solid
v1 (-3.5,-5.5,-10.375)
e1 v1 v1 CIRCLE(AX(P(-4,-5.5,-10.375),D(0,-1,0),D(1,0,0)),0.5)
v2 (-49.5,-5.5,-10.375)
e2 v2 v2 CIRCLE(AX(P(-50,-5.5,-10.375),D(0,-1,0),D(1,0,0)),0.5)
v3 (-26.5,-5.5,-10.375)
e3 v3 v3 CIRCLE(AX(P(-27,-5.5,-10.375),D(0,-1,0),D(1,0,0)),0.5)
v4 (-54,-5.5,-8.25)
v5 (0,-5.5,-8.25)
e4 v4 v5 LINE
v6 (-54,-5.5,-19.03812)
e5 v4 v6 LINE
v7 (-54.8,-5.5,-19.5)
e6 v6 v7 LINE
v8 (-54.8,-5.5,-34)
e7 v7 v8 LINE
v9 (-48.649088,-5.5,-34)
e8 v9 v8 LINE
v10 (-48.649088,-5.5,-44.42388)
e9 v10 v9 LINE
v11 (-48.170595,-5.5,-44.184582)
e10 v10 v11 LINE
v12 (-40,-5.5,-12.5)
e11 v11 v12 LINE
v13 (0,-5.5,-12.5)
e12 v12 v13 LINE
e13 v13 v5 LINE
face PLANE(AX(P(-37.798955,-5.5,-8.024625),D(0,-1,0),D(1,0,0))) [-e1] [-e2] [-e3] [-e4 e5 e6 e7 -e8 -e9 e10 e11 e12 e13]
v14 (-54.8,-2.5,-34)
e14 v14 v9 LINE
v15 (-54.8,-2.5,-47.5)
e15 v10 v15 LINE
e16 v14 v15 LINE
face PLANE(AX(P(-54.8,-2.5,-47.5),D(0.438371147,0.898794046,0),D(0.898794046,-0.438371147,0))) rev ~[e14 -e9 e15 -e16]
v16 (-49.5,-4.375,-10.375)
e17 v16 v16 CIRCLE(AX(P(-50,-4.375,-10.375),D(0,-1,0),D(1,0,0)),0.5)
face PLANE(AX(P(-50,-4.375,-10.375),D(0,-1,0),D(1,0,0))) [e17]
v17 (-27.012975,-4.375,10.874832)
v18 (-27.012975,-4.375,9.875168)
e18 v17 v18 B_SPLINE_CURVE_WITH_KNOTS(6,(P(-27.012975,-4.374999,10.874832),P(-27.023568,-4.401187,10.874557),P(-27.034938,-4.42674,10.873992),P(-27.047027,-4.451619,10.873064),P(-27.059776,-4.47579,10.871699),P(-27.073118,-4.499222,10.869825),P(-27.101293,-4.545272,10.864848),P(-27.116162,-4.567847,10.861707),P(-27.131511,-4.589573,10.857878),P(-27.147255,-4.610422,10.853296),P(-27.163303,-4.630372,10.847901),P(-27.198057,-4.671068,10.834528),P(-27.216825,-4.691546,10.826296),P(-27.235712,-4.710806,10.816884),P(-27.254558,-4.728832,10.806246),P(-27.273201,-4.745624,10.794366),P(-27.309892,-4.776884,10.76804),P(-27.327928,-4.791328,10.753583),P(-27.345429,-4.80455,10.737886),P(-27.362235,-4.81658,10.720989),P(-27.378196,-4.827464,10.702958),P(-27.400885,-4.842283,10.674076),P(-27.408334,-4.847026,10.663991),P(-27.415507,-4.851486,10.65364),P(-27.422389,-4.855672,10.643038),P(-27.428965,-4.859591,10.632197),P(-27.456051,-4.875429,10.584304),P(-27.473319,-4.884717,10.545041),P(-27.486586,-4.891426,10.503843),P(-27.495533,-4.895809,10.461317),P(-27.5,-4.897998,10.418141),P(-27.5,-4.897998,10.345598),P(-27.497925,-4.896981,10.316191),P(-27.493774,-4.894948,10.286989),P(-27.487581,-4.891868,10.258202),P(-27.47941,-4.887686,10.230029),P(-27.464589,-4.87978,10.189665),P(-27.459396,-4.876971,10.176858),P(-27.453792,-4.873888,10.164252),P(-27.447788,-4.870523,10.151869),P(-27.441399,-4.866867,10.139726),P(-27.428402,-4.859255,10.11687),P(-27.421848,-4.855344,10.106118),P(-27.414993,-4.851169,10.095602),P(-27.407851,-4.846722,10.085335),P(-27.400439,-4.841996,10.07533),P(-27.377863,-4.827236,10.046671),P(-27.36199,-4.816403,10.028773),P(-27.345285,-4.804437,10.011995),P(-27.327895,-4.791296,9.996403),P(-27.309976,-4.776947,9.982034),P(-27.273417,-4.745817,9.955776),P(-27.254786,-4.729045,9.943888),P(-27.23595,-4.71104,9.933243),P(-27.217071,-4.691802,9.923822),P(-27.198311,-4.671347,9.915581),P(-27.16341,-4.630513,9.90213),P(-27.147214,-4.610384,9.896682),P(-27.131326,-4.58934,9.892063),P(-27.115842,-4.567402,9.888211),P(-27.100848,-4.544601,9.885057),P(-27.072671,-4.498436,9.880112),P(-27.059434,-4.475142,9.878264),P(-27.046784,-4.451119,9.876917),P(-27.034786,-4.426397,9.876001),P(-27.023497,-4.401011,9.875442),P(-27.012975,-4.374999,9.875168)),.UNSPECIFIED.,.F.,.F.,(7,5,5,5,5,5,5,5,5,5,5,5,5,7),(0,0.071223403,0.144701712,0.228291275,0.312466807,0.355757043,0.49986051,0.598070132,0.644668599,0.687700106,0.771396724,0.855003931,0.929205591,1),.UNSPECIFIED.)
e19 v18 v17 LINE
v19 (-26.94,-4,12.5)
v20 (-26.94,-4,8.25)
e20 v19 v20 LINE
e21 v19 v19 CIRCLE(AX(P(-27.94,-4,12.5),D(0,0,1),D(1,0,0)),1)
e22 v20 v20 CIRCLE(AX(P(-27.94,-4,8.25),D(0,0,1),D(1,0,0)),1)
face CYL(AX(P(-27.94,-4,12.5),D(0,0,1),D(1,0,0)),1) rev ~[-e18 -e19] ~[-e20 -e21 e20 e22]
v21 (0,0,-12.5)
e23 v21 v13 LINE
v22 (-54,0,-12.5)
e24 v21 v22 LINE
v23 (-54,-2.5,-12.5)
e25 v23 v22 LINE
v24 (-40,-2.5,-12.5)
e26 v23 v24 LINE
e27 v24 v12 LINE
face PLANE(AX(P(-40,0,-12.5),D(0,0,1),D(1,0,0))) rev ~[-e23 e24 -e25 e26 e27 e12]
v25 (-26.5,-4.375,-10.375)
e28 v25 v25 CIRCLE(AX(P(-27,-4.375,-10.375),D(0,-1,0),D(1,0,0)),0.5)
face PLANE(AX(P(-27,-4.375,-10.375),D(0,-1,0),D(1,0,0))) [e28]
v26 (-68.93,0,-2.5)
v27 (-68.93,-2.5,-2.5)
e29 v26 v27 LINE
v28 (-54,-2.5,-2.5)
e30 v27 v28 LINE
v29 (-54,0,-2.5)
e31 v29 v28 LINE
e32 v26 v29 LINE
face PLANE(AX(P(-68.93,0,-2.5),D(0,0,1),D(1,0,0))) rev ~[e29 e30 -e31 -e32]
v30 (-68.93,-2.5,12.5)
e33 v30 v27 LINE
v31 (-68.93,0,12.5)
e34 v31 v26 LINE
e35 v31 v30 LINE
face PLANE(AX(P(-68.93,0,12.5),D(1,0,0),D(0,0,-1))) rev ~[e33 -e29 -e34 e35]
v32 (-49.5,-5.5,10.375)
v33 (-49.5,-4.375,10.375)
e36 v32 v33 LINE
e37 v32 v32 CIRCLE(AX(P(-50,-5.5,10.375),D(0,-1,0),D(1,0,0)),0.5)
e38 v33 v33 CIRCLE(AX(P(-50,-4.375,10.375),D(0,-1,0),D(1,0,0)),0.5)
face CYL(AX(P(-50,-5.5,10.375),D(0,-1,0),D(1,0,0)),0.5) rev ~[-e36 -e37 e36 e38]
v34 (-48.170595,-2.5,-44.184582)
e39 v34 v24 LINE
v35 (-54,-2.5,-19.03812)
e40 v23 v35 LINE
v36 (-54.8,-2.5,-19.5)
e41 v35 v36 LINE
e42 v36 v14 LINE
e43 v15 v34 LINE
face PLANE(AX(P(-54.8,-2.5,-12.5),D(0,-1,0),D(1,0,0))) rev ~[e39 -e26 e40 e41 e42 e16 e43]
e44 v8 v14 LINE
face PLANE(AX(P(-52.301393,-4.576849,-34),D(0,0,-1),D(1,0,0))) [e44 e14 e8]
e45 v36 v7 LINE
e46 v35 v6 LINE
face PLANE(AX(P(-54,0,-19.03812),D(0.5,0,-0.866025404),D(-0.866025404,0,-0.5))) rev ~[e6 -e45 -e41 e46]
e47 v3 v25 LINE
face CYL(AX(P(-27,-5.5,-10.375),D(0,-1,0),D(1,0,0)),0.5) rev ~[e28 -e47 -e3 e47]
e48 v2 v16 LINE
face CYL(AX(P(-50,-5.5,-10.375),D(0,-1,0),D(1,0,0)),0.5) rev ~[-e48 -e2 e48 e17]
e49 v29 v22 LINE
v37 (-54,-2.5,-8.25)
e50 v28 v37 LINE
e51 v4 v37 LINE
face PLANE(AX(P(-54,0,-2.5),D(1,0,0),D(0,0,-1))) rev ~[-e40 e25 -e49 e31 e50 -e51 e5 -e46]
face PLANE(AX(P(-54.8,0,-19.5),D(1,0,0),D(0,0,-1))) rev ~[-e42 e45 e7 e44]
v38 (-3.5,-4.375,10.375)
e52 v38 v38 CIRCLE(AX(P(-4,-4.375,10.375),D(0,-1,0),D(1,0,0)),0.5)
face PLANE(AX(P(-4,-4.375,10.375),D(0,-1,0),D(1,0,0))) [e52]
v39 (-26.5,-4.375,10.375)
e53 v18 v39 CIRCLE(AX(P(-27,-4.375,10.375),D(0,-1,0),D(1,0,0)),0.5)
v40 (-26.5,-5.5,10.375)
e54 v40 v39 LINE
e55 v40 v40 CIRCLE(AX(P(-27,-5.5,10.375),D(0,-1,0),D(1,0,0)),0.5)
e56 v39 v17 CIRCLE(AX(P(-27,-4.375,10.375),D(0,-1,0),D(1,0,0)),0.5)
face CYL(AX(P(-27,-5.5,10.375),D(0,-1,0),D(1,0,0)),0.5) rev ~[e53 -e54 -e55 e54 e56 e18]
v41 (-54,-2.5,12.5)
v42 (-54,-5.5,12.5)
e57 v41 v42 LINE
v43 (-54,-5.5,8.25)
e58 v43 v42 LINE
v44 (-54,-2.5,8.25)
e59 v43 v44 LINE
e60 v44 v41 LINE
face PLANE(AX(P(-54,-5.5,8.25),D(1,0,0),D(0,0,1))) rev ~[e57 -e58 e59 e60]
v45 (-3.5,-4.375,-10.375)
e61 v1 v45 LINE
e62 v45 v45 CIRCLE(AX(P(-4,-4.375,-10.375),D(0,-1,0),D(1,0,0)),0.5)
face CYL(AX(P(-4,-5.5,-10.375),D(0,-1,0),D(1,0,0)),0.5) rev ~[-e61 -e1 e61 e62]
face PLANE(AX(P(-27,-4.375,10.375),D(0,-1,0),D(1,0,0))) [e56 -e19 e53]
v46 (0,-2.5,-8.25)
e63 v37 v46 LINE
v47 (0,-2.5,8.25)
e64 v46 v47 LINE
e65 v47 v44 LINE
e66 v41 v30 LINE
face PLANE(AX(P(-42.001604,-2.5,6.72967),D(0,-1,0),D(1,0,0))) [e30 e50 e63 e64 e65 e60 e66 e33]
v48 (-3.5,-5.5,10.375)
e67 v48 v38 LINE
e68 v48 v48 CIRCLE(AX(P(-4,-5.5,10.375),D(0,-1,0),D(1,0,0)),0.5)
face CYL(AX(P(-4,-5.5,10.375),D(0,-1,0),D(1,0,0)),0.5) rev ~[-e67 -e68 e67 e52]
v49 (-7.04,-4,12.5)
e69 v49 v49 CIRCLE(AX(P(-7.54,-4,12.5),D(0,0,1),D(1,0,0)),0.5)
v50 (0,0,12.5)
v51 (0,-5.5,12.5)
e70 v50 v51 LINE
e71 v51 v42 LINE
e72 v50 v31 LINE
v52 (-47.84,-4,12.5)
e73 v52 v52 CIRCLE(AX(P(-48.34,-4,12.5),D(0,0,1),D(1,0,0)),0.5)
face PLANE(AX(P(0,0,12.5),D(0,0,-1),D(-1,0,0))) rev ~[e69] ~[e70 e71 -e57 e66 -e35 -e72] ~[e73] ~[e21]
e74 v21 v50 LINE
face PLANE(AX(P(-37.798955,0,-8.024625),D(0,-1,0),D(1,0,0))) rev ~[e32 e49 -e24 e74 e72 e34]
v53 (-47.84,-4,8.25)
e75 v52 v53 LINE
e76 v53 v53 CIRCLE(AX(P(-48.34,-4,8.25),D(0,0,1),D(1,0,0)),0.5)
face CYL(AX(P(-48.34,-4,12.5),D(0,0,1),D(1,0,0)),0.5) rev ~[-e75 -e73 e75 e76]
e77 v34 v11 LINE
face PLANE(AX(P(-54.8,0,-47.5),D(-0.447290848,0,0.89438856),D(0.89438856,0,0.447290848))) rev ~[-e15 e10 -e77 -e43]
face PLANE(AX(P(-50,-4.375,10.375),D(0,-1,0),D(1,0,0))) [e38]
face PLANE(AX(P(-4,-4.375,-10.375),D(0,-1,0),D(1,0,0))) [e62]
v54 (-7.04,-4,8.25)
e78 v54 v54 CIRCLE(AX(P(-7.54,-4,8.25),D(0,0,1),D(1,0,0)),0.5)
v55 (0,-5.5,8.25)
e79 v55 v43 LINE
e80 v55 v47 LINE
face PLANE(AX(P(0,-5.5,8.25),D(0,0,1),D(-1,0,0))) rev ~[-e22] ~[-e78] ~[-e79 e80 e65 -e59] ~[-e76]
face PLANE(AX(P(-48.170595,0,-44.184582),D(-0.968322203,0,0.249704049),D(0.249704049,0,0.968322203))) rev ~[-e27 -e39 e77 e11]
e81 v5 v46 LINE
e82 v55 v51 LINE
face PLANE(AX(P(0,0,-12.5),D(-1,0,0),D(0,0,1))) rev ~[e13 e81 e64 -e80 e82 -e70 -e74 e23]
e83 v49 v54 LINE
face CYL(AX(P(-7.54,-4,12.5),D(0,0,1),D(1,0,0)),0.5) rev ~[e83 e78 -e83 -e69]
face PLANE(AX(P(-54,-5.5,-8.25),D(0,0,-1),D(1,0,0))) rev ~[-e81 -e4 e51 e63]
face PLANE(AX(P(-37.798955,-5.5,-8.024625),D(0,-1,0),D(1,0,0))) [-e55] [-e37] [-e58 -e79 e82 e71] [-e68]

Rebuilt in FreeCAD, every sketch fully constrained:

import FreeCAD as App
import Part
import Sketcher
from FreeCAD import Vector
Q = App.Units.Quantity


def add_polygon(sketch, points):
    """Adds a closed chain of lines whose ends are joined by coincident constraints."""
    first, n = sketch.GeometryCount, len(points)
    for a, b in zip(points, points[1:] + points[:1]):
        sketch.addGeometry(Part.LineSegment(App.Vector(*a, 0), App.Vector(*b, 0)), False)
    for i in range(n):
        sketch.addConstraint(Sketcher.Constraint("Coincident", first + i, 2, first + (i + 1) % n, 1))

doc = App.newDocument("Part")
body = doc.addObject("PartDesign::Body", "Body")

sketch1 = body.newObject("Sketcher::SketchObject", "Sketch")
sketch1.AttachmentSupport = (doc.getObject("XZ_Plane"), [""])
sketch1.MapMode = "FlatFace"
add_polygon(sketch1, [(0, -12.5), (0, 12.5), (-68.9, 12.5), (-68.9, -2.5), (-54, -2.5), (-54, -19), (-54.8, -19.5), (-54.8, -47.5), (-48.2, -44.2), (-40, -12.5)])
sketch1.addConstraint([
    Sketcher.Constraint("Vertical", 0),
    Sketcher.Constraint("Horizontal", 1),
    Sketcher.Constraint("Vertical", 2),
    Sketcher.Constraint("Horizontal", 3),
    Sketcher.Constraint("Vertical", 4),
    Sketcher.Constraint("Vertical", 6),
    Sketcher.Constraint("Horizontal", 9),
    Sketcher.Constraint("Symmetric", 0, 2, 9, 2, -1, 1),
    Sketcher.Constraint("DistanceX", 9, 1, 9, 2, 40.0),
    Sketcher.Constraint("DistanceY", 0, 1, 0, 2, 25.0),
    Sketcher.Constraint("DistanceY", 2, 2, 2, 1, 15.0),
    Sketcher.Constraint("DistanceY", 6, 2, 6, 1, 28.0),
    Sketcher.Constraint("Angle", 5, Q("-150 deg")),
    Sketcher.Constraint("DistanceX", 3, 2, -1, 1, 54.0),
    Sketcher.Constraint("DistanceY", 5, 2, 3, 2, 17.0),
    Sketcher.Constraint("DistanceX", 1, 2, 1, 1, 68.93),
    Sketcher.Constraint("DistanceX", 5, 2, -1, 1, 54.8),
    Sketcher.Constraint("Angle", 7, Q("26.57 deg")),
    Sketcher.Constraint("Angle", 8, Q("75.54 deg")),
])
pad1 = body.newObject("PartDesign::Pad", "Pad")
pad1.Profile = sketch1
pad1.Length = 5.5

sketch2 = body.newObject("Sketcher::SketchObject", "Sketch001")
sketch2.AttachmentSupport = (doc.getObject("XZ_Plane"), [""])
sketch2.MapMode = "FlatFace"
sketch2.AttachmentOffset = App.Placement(Vector(0, 0, 5.5), App.Rotation())
add_polygon(sketch2, [(0, -8), (0, 8), (-54, 8), (-54, 32), (-74, 32), (-74, -2), (-54, -2), (-54, -8)])
sketch2.addConstraint([
    Sketcher.Constraint("Vertical", 0),
    Sketcher.Constraint("Horizontal", 1),
    Sketcher.Constraint("Vertical", 2),
    Sketcher.Constraint("Horizontal", 3),
    Sketcher.Constraint("Vertical", 4),
    Sketcher.Constraint("Horizontal", 5),
    Sketcher.Constraint("Vertical", 6),
    Sketcher.Constraint("Horizontal", 7),
    Sketcher.Constraint("Symmetric", 0, 2, 7, 2, -1, 1),
    Sketcher.Constraint("Vertical", 2, 2, 5, 2),
    Sketcher.Constraint("DistanceX", 1, 2, 1, 1, 54.0),
    Sketcher.Constraint("DistanceY", 0, 1, 0, 2, 16.5),
    Sketcher.Constraint("DistanceY", 6, 2, 6, 1, 5.75),
    Sketcher.Constraint("DistanceY", 2, 1, 2, 2, 23.68365),
    Sketcher.Constraint("DistanceX", 3, 2, 3, 1, 19.778898),
])
pocket1 = body.newObject("PartDesign::Pocket", "Pocket")
pocket1.Profile = sketch2
pocket1.Length = 3

sketch3 = body.newObject("Sketcher::SketchObject", "Sketch002")
sketch3.AttachmentSupport = (doc.getObject("XZ_Plane"), [""])
sketch3.MapMode = "FlatFace"
sketch3.AttachmentOffset = App.Placement(Vector(0, 0, 5.5), App.Rotation())
sketch3.addGeometry([
    Part.Circle(Vector(-4, 10.4, 0), Vector(0, 0, 1), 0.5),
    Part.Circle(Vector(-27, 10.4, 0), Vector(0, 0, 1), 0.5),
    Part.Circle(Vector(-50, 10.4, 0), Vector(0, 0, 1), 0.5),
    Part.Circle(Vector(-50, -10.4, 0), Vector(0, 0, 1), 0.5),
    Part.Circle(Vector(-27, -10.4, 0), Vector(0, 0, 1), 0.5),
    Part.Circle(Vector(-4, -10.4, 0), Vector(0, 0, 1), 0.5),
], False)
sketch3.addConstraint([
    Sketcher.Constraint("Equal", 0, 1),
    Sketcher.Constraint("Equal", 1, 2),
    Sketcher.Constraint("Equal", 2, 3),
    Sketcher.Constraint("Equal", 3, 4),
    Sketcher.Constraint("Equal", 4, 5),
    Sketcher.Constraint("Symmetric", 2, 3, 3, 3, -1),
    Sketcher.Constraint("Symmetric", 1, 3, 4, 3, -1),
    Sketcher.Constraint("Symmetric", 0, 3, 5, 3, -1),
    Sketcher.Constraint("Horizontal", 0, 3, 1, 3),
    Sketcher.Constraint("Horizontal", 1, 3, 2, 3),
    Sketcher.Constraint("Diameter", 0, 1.0),
    Sketcher.Constraint("DistanceX", 0, 3, -1, 1, 4.0),
    Sketcher.Constraint("DistanceX", 1, 3, -1, 1, 27.0),
    Sketcher.Constraint("DistanceX", 2, 3, -1, 1, 50.0),
    Sketcher.Constraint("DistanceY", 3, 3, 2, 3, 20.75),
])
pocket2 = body.newObject("PartDesign::Pocket", "Pocket001")
pocket2.Profile = sketch3
pocket2.Length = 1.125

sketch4 = body.newObject("Sketcher::SketchObject", "Sketch003")
sketch4.AttachmentSupport = (doc.getObject("XY_Plane"), [""])
sketch4.MapMode = "FlatFace"
sketch4.AttachmentOffset = App.Placement(Vector(0, 0, 30), App.Rotation())
add_polygon(sketch4, [(-67.1, 0), (-62, -2.5), (-62, 0)])
sketch4.addConstraint([
    Sketcher.Constraint("Vertical", 1),
    Sketcher.Constraint("Horizontal", 2),
    Sketcher.Constraint("PointOnObject", 1, 2, -1),
    Sketcher.Constraint("Angle", 0, Q("-26 deg")),
    Sketcher.Constraint("DistanceY", 1, 1, 1, 2, 2.5),
    Sketcher.Constraint("DistanceX", 0, 2, -1, 1, 62.0),
])
pocket3 = body.newObject("PartDesign::Pocket", "Pocket002")
pocket3.Profile = sketch4
pocket3.Length = 12.5

sketch5 = body.newObject("Sketcher::SketchObject", "Sketch004")
sketch5.AttachmentSupport = (doc.getObject("XY_Plane"), [""])
sketch5.MapMode = "FlatFace"
sketch5.AttachmentOffset = App.Placement(Vector(0, 0, -12.5), App.Rotation())
add_polygon(sketch5, [(-54.8, -2.5), (-54.8, 0), (-40, 0), (-40, -2.5)])
sketch5.addConstraint([
    Sketcher.Constraint("Vertical", 0),
    Sketcher.Constraint("Horizontal", 1),
    Sketcher.Constraint("Vertical", 2),
    Sketcher.Constraint("Horizontal", 3),
    Sketcher.Constraint("PointOnObject", 0, 2, -1),
    Sketcher.Constraint("DistanceX", 1, 1, 1, 2, 14.8),
    Sketcher.Constraint("DistanceY", 0, 1, 0, 2, 2.5),
    Sketcher.Constraint("DistanceX", 1, 2, -1, 1, 40.0),
])
pocket4 = body.newObject("PartDesign::Pocket", "Pocket003")
pocket4.Profile = sketch5
pocket4.Length = 47

sketch6 = body.newObject("Sketcher::SketchObject", "Sketch005")
sketch6.AttachmentSupport = (doc.getObject("XY_Plane"), [""])
sketch6.MapMode = "FlatFace"
sketch6.AttachmentOffset = App.Placement(Vector(0, 0, -47.5), App.Rotation())
add_polygon(sketch6, [(-48.6, -5.5), (-54.8, -5.5), (-54.8, -2.5)])
sketch6.addConstraint([
    Sketcher.Constraint("Horizontal", 0),
    Sketcher.Constraint("Vertical", 1),
    Sketcher.Constraint("DistanceY", 1, 1, 1, 2, 3.0),
    Sketcher.Constraint("Angle", 2, Q("-26 deg")),
    Sketcher.Constraint("DistanceX", 0, 2, -1, 1, 54.8),
    Sketcher.Constraint("DistanceY", 0, 2, -1, 1, 5.5),
])
pocket5 = body.newObject("PartDesign::Pocket", "Pocket004")
pocket5.Profile = sketch6
pocket5.Length = 13.5
pocket5.Reversed = True

sketch7 = body.newObject("Sketcher::SketchObject", "Sketch006")
sketch7.AttachmentSupport = (doc.getObject("XY_Plane"), [""])
sketch7.MapMode = "FlatFace"
sketch7.AttachmentOffset = App.Placement(Vector(0, 0, 12.5), App.Rotation())
sketch7.addGeometry([
    Part.Circle(Vector(-7.5, -4, 0), Vector(0, 0, 1), 0.5),
    Part.Circle(Vector(-48.3, -4, 0), Vector(0, 0, 1), 0.5),
], False)
sketch7.addConstraint([
    Sketcher.Constraint("Equal", 0, 1),
    Sketcher.Constraint("Horizontal", 0, 3, 1, 3),
    Sketcher.Constraint("Diameter", 0, 1.0),
    Sketcher.Constraint("DistanceY", 0, 3, -1, 1, 4.0),
    Sketcher.Constraint("DistanceX", 1, 3, 0, 3, 40.8),
    Sketcher.Constraint("DistanceX", 0, 3, -1, 1, 7.54),
])
pocket6 = body.newObject("PartDesign::Pocket", "Pocket005")
pocket6.Profile = sketch7
pocket6.Length = 4.25

sketch8 = body.newObject("Sketcher::SketchObject", "Sketch007")
sketch8.AttachmentSupport = (doc.getObject("XY_Plane"), [""])
sketch8.MapMode = "FlatFace"
sketch8.AttachmentOffset = App.Placement(Vector(0, 0, 12.5), App.Rotation())
sketch8.addGeometry(Part.Circle(Vector(-27.9, -4, 0), Vector(0, 0, 1), 1), False)
sketch8.addConstraint([
    Sketcher.Constraint("Diameter", 0, 2.0),
    Sketcher.Constraint("DistanceY", 0, 3, -1, 1, 4.0),
    Sketcher.Constraint("DistanceX", 0, 3, -1, 1, 27.94),
])
pocket7 = body.newObject("PartDesign::Pocket", "Pocket006")
pocket7.Profile = sketch8
pocket7.Length = 4.25

doc.recompute()
